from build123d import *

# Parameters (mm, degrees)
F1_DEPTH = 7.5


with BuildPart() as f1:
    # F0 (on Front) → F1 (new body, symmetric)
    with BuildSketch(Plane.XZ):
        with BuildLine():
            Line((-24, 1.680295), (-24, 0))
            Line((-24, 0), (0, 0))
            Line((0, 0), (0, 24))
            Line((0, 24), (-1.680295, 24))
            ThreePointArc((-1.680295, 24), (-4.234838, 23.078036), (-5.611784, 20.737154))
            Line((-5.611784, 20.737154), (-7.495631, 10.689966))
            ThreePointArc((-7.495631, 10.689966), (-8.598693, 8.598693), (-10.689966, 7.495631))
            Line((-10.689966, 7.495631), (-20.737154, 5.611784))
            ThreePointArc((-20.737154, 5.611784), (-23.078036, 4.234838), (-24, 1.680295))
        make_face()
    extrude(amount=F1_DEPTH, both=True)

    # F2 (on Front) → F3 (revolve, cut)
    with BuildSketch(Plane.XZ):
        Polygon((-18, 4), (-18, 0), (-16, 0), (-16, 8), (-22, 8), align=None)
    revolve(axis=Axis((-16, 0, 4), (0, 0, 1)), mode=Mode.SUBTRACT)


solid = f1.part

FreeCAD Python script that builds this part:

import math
import FreeCAD as App
import Part
import Sketcher

V = App.Vector
Q = App.Units.Quantity

doc = App.newDocument("Part")
body = doc.addObject("PartDesign::Body", "Body")

# Sketch on XZ plane
sketch1 = body.newObject("Sketcher::SketchObject", "Sketch")
sketch1.AttachmentSupport = (doc.getObject("XZ_Plane"), [""])
sketch1.MapMode = "FlatFace"
sketch1.addGeometry(Part.LineSegment(V(-24, 1.7, 0), V(-24, 0, 0)), False)
sketch1.addGeometry(Part.LineSegment(V(-24, 0, 0), V(0, 0, 0)), False)
sketch1.addGeometry(Part.LineSegment(V(0, 0, 0), V(0, 24, 0)), False)
sketch1.addGeometry(Part.LineSegment(V(0, 24, 0), V(-1.7, 24, 0)), False)
sketch1.addGeometry(Part.ArcOfCircle(Part.Circle(V(-1.7, 20, 0), V(0, 0, 1), 4), math.radians(90), math.radians(169)), False)
sketch1.addGeometry(Part.LineSegment(V(-5.6, 20.7, 0), V(-7.5, 10.7, 0)), False)
sketch1.addGeometry(Part.ArcOfCircle(Part.Circle(V(-11.4, 11.4, 0), V(0, 0, 1), 4), math.radians(-79), math.radians(-11)), False)
sketch1.addGeometry(Part.LineSegment(V(-10.7, 7.5, 0), V(-20.7, 5.6, 0)), False)
sketch1.addGeometry(Part.ArcOfCircle(Part.Circle(V(-20, 1.7, 0), V(0, 0, 1), 4), math.radians(101), math.radians(180)), False)
sketch1.addConstraint(Sketcher.Constraint("Coincident", 0, 2, 1, 1))
sketch1.addConstraint(Sketcher.Constraint("Coincident", 1, 2, 2, 1))
sketch1.addConstraint(Sketcher.Constraint("Coincident", 2, 2, 3, 1))
sketch1.addConstraint(Sketcher.Constraint("Tangent", 3, 2, 4, 1))
sketch1.addConstraint(Sketcher.Constraint("Tangent", 4, 2, 5, 1))
sketch1.addConstraint(Sketcher.Constraint("Tangent", 5, 2, 6, 2))
sketch1.addConstraint(Sketcher.Constraint("Tangent", 6, 1, 7, 1))
sketch1.addConstraint(Sketcher.Constraint("Tangent", 7, 2, 8, 1))
sketch1.addConstraint(Sketcher.Constraint("Tangent", 8, 2, 0, 1))
sketch1.addConstraint(Sketcher.Constraint("Vertical", 0))
sketch1.addConstraint(Sketcher.Constraint("Horizontal", 1))
sketch1.addConstraint(Sketcher.Constraint("Vertical", 2))
sketch1.addConstraint(Sketcher.Constraint("Horizontal", 3))
sketch1.addConstraint(Sketcher.Constraint("Coincident", 1, 2, -1, 1))
sketch1.addConstraint(Sketcher.Constraint("Equal", 4, 6))
sketch1.addConstraint(Sketcher.Constraint("Equal", 6, 8))
sketch1.addConstraint(Sketcher.Constraint("Equal", 3, 0))
sketch1.addConstraint(Sketcher.Constraint("Equal", 1, 2))
sketch1.addConstraint(Sketcher.Constraint("Equal", 5, 7))
sketch1.addConstraint(Sketcher.Constraint("DistanceX", 1, 1, 1, 2, Q("24 mm")))
sketch1.addConstraint(Sketcher.Constraint("Radius", 4, Q("4.000002 mm")))
sketch1.addConstraint(Sketcher.Constraint("DistanceX", 3, 2, 3, 1, Q("1.680295 mm")))
sketch1.addConstraint(Sketcher.Constraint("DistanceX", 6, 3, -1, 1, Q("11.427122 mm")))
pad1 = body.newObject("PartDesign::Pad", "Pad")
pad1.Profile = sketch1
pad1.Length = 15
pad1.Midplane = True

# Sketch on XZ plane
sketch2 = body.newObject("Sketcher::SketchObject", "Sketch001")
sketch2.AttachmentSupport = (doc.getObject("XZ_Plane"), [""])
sketch2.MapMode = "FlatFace"
sketch2.addGeometry(Part.LineSegment(V(-18, 4, 0), V(-18, 0, 0)), False)
sketch2.addGeometry(Part.LineSegment(V(-18, 0, 0), V(-16, 0, 0)), False)
sketch2.addGeometry(Part.LineSegment(V(-16, 0, 0), V(-16, 8, 0)), False)
sketch2.addGeometry(Part.LineSegment(V(-16, 8, 0), V(-22, 8, 0)), False)
sketch2.addGeometry(Part.LineSegment(V(-22, 8, 0), V(-18, 4, 0)), False)
sketch2.addGeometry(Part.LineSegment(V(-16, 0, 0), V(-16, 8, 0)), True)  # axis
sketch2.addConstraint(Sketcher.Constraint("Coincident", 0, 2, 1, 1))
sketch2.addConstraint(Sketcher.Constraint("Coincident", 1, 2, 2, 1))
sketch2.addConstraint(Sketcher.Constraint("Coincident", 2, 2, 3, 1))
sketch2.addConstraint(Sketcher.Constraint("Coincident", 3, 2, 4, 1))
sketch2.addConstraint(Sketcher.Constraint("Coincident", 4, 2, 0, 1))
sketch2.addConstraint(Sketcher.Constraint("Vertical", 0))
sketch2.addConstraint(Sketcher.Constraint("Horizontal", 1))
sketch2.addConstraint(Sketcher.Constraint("Vertical", 2))
sketch2.addConstraint(Sketcher.Constraint("Horizontal", 3))
sketch2.addConstraint(Sketcher.Constraint("Vertical", 5))
sketch2.addConstraint(Sketcher.Constraint("Coincident", 5, 1, 1, 2))
sketch2.addConstraint(Sketcher.Constraint("PointOnObject", 0, 2, -1))
sketch2.addConstraint(Sketcher.Constraint("Horizontal", 3, 2, 5, 2))
sketch2.addConstraint(Sketcher.Constraint("DistanceX", 1, 1, 1, 2, Q("2 mm")))
sketch2.addConstraint(Sketcher.Constraint("DistanceX", 3, 2, 3, 1, Q("6 mm")))
sketch2.addConstraint(Sketcher.Constraint("DistanceY", 0, 2, 0, 1, Q("4 mm")))
sketch2.addConstraint(Sketcher.Constraint("DistanceY", 2, 1, 2, 2, Q("8 mm")))
sketch2.addConstraint(Sketcher.Constraint("DistanceX", 0, 2, -1, 1, Q("18 mm")))
groove = body.newObject("PartDesign::Groove", "Groove")
groove.Profile = sketch2
groove.ReferenceAxis = (sketch2, ["Axis0"])
groove.Angle = 360

doc.recompute()
